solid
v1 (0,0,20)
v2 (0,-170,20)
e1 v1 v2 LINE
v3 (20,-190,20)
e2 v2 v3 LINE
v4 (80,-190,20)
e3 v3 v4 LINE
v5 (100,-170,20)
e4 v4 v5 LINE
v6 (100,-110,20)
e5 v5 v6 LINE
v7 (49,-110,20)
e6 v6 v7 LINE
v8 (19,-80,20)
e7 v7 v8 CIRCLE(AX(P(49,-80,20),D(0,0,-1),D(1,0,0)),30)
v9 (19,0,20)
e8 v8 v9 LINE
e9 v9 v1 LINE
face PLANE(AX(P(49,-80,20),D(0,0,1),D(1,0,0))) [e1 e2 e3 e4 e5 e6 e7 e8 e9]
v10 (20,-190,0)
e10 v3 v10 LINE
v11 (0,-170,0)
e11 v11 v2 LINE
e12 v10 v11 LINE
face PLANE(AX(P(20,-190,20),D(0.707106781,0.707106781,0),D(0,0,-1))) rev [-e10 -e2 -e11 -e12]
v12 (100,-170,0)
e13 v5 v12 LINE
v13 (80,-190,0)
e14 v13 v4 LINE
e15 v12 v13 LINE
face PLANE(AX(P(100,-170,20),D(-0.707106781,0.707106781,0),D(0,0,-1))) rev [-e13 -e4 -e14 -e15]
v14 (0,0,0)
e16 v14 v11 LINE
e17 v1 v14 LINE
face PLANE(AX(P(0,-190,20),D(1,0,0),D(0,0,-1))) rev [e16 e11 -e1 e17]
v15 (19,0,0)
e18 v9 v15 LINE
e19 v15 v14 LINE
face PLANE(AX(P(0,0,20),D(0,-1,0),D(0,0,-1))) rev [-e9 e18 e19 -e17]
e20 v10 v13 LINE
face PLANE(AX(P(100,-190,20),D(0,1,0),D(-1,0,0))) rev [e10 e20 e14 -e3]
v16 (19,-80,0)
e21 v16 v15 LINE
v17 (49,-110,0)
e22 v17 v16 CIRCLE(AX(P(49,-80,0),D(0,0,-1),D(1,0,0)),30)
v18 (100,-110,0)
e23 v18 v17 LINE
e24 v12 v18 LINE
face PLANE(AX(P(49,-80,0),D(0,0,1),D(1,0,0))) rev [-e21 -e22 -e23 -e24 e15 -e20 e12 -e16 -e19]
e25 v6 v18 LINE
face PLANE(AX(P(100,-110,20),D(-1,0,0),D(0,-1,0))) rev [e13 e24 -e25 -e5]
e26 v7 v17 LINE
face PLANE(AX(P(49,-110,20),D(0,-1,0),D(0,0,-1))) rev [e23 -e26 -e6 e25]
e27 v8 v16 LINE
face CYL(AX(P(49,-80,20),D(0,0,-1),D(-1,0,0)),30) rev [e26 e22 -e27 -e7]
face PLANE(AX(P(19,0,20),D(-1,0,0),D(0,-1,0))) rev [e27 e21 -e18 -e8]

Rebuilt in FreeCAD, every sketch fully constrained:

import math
import FreeCAD as App
import Part
import Sketcher

V = App.Vector


def edges_at(feature, points):
    """Names of the edges that pass closest to the given points."""
    edges = feature.Shape.Edges
    near = lambda p: min(range(len(edges)), key=lambda i: edges[i].distToShape(Part.Vertex(*p))[0])
    return sorted({f"Edge{near(p) + 1}" for p in points})

doc = App.newDocument("Part")
params = doc.addObject("Spreadsheet::Sheet", "Params")
for row, (alias, value) in enumerate([
    ("sketch1_radius", "30 mm"),
    ("sketch1_width", "19 mm"),
    ("sketch1_width2", "100 mm"),
    ("sketch1_height", "190 mm"),
    ("pad1_length", "20 mm"),
    ("chamfer_size", "20 mm"),
], start=1):
    params.set(f"A{row}", alias)
    params.set(f"B{row}", "=" + value)
    params.setAlias(f"B{row}", alias)

body = doc.addObject("PartDesign::Body", "Body")

# Sketch on XY plane
sketch1 = doc.addObject("Sketcher::SketchObject", "Sketch")
body.addObject(sketch1)
sketch1.AttachmentSupport = (doc.XY_Plane, [""])
sketch1.MapMode = "FlatFace"
sketch1.addGeometry([
    Part.LineSegment(V(19, 0, 0), V(0, 0, 0)),  # 0
    Part.LineSegment(V(0, 0, 0), V(0, -190, 0)),  # 1
    Part.LineSegment(V(0, -190, 0), V(100, -190, 0)),  # 2
    Part.LineSegment(V(100, -190, 0), V(100, -110, 0)),  # 3
    Part.LineSegment(V(100, -110, 0), V(49, -110, 0)),  # 4
    Part.ArcOfCircle(Part.Circle(V(49, -80, 0), V(0, 0, 1), 30), math.radians(180), math.radians(270)),  # 5
    Part.LineSegment(V(19, -80, 0), V(19, 0, 0)),  # 6
], False)
sketch1.addConstraint([
    Sketcher.Constraint("Coincident", 0, 2, 1, 1),
    Sketcher.Constraint("Coincident", 1, 2, 2, 1),
    Sketcher.Constraint("Coincident", 2, 2, 3, 1),
    Sketcher.Constraint("Coincident", 3, 2, 4, 1),
    Sketcher.Constraint("Tangent", 4, 2, 5, 2),
    Sketcher.Constraint("Tangent", 5, 1, 6, 1),
    Sketcher.Constraint("Coincident", 6, 2, 0, 1),
    Sketcher.Constraint("Horizontal", 0),
    Sketcher.Constraint("Vertical", 1),
    Sketcher.Constraint("Horizontal", 2),
    Sketcher.Constraint("Vertical", 3),
    Sketcher.Constraint("Horizontal", 4),
    Sketcher.Constraint("Vertical", 6),
    Sketcher.Constraint("Coincident", 0, 2, -1, 1),
    Sketcher.Constraint("Equal", 3, 6),
    Sketcher.Constraint("Radius", 5, 30.0),
    Sketcher.Constraint("DistanceX", 0, 2, 0, 1, 19.0),
    Sketcher.Constraint("DistanceX", 2, 1, 2, 2, 100.0),
    Sketcher.Constraint("DistanceY", 1, 2, 1, 1, 190.0),
])
sketch1.setExpression("Constraints[15]", "Params.sketch1_radius")
sketch1.setExpression("Constraints[16]", "Params.sketch1_width")
sketch1.setExpression("Constraints[17]", "Params.sketch1_width2")
sketch1.setExpression("Constraints[18]", "Params.sketch1_height")
pad1 = doc.addObject("PartDesign::Pad", "Pad")
body.addObject(pad1)
pad1.Profile = sketch1
pad1.setExpression("Length", "Params.pad1_length")
doc.recompute()

chamfer = doc.addObject("PartDesign::Chamfer", "Chamfer")
body.addObject(chamfer)
chamfer.Base = (pad1, edges_at(pad1, [(100, -190, 10), (0, -190, 10)]))
chamfer.setExpression("Size", "Params.chamfer_size")

doc.recompute()
